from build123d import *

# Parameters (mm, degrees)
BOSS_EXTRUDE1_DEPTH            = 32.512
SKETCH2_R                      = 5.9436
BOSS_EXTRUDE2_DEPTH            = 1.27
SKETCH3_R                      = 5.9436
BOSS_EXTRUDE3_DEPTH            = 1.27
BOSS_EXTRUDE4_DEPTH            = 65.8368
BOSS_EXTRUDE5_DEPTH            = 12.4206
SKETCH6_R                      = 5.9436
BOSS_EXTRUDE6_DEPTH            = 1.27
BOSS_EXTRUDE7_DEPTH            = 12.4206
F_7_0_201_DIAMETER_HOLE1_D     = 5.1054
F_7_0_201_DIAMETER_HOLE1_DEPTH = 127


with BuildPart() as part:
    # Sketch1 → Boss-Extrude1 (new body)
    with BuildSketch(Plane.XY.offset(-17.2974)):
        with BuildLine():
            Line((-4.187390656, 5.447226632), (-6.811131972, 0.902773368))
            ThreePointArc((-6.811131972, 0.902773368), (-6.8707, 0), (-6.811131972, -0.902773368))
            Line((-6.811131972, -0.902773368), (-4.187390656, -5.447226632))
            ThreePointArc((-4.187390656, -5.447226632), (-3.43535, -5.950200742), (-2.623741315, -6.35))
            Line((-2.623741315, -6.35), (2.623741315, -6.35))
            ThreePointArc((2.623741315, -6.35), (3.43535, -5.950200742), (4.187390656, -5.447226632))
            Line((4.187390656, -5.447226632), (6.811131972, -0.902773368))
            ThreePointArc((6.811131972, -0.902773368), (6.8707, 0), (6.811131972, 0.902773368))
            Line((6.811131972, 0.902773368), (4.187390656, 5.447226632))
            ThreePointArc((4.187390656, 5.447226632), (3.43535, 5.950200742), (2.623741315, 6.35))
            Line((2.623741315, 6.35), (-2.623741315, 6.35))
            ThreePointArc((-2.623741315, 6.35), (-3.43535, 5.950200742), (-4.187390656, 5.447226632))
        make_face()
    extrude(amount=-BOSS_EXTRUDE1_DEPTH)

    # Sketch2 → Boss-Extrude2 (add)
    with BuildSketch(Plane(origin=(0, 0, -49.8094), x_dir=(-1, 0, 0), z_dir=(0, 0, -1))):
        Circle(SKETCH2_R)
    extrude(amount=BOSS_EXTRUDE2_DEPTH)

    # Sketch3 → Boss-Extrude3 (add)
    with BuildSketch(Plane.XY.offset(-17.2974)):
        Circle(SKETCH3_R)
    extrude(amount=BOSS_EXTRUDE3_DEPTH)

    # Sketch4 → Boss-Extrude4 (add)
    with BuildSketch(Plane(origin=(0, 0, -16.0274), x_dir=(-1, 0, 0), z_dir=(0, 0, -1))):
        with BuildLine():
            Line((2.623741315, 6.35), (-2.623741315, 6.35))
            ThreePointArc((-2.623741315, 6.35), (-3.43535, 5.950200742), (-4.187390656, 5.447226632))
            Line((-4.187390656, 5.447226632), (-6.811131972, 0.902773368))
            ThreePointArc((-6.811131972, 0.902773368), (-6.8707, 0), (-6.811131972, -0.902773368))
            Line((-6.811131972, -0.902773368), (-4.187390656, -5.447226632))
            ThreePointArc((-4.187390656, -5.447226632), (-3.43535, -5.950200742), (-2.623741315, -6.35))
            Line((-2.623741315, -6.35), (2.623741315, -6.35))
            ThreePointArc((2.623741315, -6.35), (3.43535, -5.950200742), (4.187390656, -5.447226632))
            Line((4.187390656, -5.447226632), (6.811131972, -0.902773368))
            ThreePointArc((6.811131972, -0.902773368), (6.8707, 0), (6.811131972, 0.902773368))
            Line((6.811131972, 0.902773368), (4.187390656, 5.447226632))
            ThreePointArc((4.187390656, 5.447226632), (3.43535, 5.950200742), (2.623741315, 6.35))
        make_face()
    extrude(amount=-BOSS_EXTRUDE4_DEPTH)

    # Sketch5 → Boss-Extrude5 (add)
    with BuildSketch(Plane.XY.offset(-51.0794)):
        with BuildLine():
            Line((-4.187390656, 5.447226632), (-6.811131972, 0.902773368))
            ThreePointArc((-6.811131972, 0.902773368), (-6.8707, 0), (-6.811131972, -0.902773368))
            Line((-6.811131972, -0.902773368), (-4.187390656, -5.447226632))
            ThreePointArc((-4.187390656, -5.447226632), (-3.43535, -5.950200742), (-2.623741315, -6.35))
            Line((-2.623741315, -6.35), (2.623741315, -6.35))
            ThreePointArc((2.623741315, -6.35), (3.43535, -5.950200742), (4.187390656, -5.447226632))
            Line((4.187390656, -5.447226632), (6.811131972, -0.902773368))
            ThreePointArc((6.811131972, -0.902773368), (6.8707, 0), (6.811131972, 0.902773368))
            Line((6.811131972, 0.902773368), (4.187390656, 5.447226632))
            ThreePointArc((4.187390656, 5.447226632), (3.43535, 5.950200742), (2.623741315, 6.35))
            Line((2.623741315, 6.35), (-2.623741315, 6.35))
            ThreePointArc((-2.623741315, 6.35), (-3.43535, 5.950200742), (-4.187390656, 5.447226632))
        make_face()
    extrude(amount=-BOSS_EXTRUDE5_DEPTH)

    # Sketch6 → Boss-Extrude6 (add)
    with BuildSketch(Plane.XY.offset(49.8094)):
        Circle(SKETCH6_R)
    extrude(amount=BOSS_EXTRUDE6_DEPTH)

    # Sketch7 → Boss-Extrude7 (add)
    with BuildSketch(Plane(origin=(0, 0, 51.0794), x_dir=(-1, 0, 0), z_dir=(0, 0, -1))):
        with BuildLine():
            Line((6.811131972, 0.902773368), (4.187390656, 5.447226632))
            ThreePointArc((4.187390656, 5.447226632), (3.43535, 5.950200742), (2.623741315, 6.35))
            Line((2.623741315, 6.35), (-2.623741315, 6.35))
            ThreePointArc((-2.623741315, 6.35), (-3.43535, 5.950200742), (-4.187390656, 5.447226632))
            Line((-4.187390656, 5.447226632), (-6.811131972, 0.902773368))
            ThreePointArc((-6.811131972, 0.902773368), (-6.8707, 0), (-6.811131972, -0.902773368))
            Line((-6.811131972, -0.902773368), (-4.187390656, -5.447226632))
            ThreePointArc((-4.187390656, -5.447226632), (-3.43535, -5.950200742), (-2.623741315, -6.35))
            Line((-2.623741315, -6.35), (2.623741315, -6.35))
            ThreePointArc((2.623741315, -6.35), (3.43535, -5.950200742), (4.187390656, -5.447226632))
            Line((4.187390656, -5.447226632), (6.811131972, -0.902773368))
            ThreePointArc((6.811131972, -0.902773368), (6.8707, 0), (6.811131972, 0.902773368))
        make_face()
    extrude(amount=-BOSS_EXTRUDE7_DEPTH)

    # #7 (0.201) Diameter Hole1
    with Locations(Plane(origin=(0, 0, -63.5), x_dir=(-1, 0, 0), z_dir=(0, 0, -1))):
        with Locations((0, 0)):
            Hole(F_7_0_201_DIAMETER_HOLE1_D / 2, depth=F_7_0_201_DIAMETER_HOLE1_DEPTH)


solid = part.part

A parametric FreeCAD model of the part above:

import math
import FreeCAD as App
import Part
import Sketcher

V = App.Vector
Q = App.Units.Quantity

doc = App.newDocument("Part")
params = doc.addObject("Spreadsheet::Sheet", "Params")
for row, (alias, value) in enumerate([
    ("pad1_length", "1.28 in"),
    ("sketch2_diameter", "0.468 in"),
    ("pad2_length", "0.05 in"),
    ("sketch3_diameter", "0.468 in"),
    ("pad3_length", "0.05 in"),
    ("pad4_length", "2.592 in"),
    ("pad5_length", "0.489 in"),
    ("sketch6_diameter", "0.468 in"),
    ("pad6_length", "0.05 in"),
    ("pad7_length", "0.489 in"),
    ("sketch8_diameter", "0.201 in"),
    ("hole_diameter", "0.201 in"),
    ("hole_depth", "5 in"),
], start=1):
    params.set(f"A{row}", alias)
    params.set(f"B{row}", "=" + value)
    params.setAlias(f"B{row}", alias)

body = doc.addObject("PartDesign::Body", "Body")

# Sketch on XY plane
sketch1 = doc.addObject("Sketcher::SketchObject", "Sketch")
body.addObject(sketch1)
sketch1.AttachmentSupport = (doc.XY_Plane, [""])
sketch1.MapMode = "FlatFace"
sketch1.AttachmentOffset = App.Placement(V(0, 0, -0.681 * 25.4), App.Rotation())
sketch1.addGeometry(Part.LineSegment(V(-4.187391, 5.447227, 0), V(-6.811132, 0.902773, 0)), False)
sketch1.addGeometry(Part.ArcOfCircle(Part.Circle(V(0, 0, 0), V(0, 0, 1), 6.8707), math.radians(172.449808), math.radians(187.550192)), False)
sketch1.addGeometry(Part.LineSegment(V(-6.811132, -0.902773, 0), V(-4.187391, -5.447227, 0)), False)
sketch1.addGeometry(Part.ArcOfCircle(Part.Circle(V(0, 0, 0), V(0, 0, 1), 6.8707), math.radians(-127.550193), math.radians(-112.449807)), False)
sketch1.addGeometry(Part.LineSegment(V(-2.623741, -6.35, 0), V(2.623741, -6.35, 0)), False)
sketch1.addGeometry(Part.ArcOfCircle(Part.Circle(V(0, 0, 0), V(0, 0, 1), 6.8707), math.radians(-67.550193), math.radians(-52.449807)), False)
sketch1.addGeometry(Part.LineSegment(V(4.187391, -5.447227, 0), V(6.811132, -0.902773, 0)), False)
sketch1.addGeometry(Part.ArcOfCircle(Part.Circle(V(0, 0, 0), V(0, 0, 1), 6.8707), math.radians(-7.550192), math.radians(7.550192)), False)
sketch1.addGeometry(Part.LineSegment(V(6.811132, 0.902773, 0), V(4.187391, 5.447227, 0)), False)
sketch1.addGeometry(Part.ArcOfCircle(Part.Circle(V(0, 0, 0), V(0, 0, 1), 6.8707), math.radians(52.449807), math.radians(67.550193)), False)
sketch1.addGeometry(Part.LineSegment(V(2.623741, 6.35, 0), V(-2.623741, 6.35, 0)), False)
sketch1.addGeometry(Part.ArcOfCircle(Part.Circle(V(0, 0, 0), V(0, 0, 1), 6.8707), math.radians(112.449807), math.radians(127.550193)), False)
sketch1.addConstraint(Sketcher.Constraint("Coincident", 0, 2, 1, 1))
sketch1.addConstraint(Sketcher.Constraint("Coincident", 1, 2, 2, 1))
sketch1.addConstraint(Sketcher.Constraint("Coincident", 2, 2, 3, 1))
sketch1.addConstraint(Sketcher.Constraint("Coincident", 3, 2, 4, 1))
sketch1.addConstraint(Sketcher.Constraint("Coincident", 4, 2, 5, 1))
sketch1.addConstraint(Sketcher.Constraint("Coincident", 5, 2, 6, 1))
sketch1.addConstraint(Sketcher.Constraint("Coincident", 6, 2, 7, 1))
sketch1.addConstraint(Sketcher.Constraint("Coincident", 7, 2, 8, 1))
sketch1.addConstraint(Sketcher.Constraint("Coincident", 8, 2, 9, 1))
sketch1.addConstraint(Sketcher.Constraint("Coincident", 9, 2, 10, 1))
sketch1.addConstraint(Sketcher.Constraint("Coincident", 10, 2, 11, 1))
sketch1.addConstraint(Sketcher.Constraint("Coincident", 11, 2, 0, 1))
sketch1.addConstraint(Sketcher.Constraint("Horizontal", 4))
sketch1.addConstraint(Sketcher.Constraint("Horizontal", 10))
sketch1.addConstraint(Sketcher.Constraint("Coincident", 1, 3, -1, 1))
sketch1.addConstraint(Sketcher.Constraint("Coincident", 3, 3, -1, 1))
sketch1.addConstraint(Sketcher.Constraint("Coincident", 5, 3, -1, 1))
sketch1.addConstraint(Sketcher.Constraint("Coincident", 7, 3, -1, 1))
sketch1.addConstraint(Sketcher.Constraint("Coincident", 9, 3, -1, 1))
sketch1.addConstraint(Sketcher.Constraint("Coincident", 11, 3, -1, 1))
sketch1.addConstraint(Sketcher.Constraint("Equal", 1, 3))
sketch1.addConstraint(Sketcher.Constraint("Equal", 3, 5))
sketch1.addConstraint(Sketcher.Constraint("Equal", 5, 7))
sketch1.addConstraint(Sketcher.Constraint("Equal", 7, 9))
sketch1.addConstraint(Sketcher.Constraint("Equal", 9, 11))
sketch1.addConstraint(Sketcher.Constraint("Parallel", 0, 6))
sketch1.addConstraint(Sketcher.Constraint("Parallel", 2, 8))
sketch1.addConstraint(Sketcher.Constraint("Horizontal", 2, 2, 5, 2))
sketch1.addConstraint(Sketcher.Constraint("Horizontal", 1, 2, 6, 2))
sketch1.addConstraint(Sketcher.Constraint("Horizontal", 0, 2, 7, 2))
sketch1.addConstraint(Sketcher.Constraint("Vertical", 0, 2, 1, 2))
sketch1.addConstraint(Sketcher.Constraint("Vertical", 4, 2, 9, 2))
sketch1.addConstraint(Sketcher.Constraint("Angle", 0, Q("-120 deg")))
sketch1.addConstraint(Sketcher.Constraint("Radius", 1, Q("0.2705 in")))
sketch1.addConstraint(Sketcher.Constraint("DistanceY", 3, 2, -1, 1, Q("0.25 in")))
sketch1.addConstraint(Sketcher.Constraint("DistanceY", 2, 2, 0, 2, Q("0.25 in")))
pad1 = doc.addObject("PartDesign::Pad", "Pad")
body.addObject(pad1)
pad1.Profile = sketch1
pad1.setExpression("Length", "Params.pad1_length")
pad1.Reversed = True

# Sketch on XY plane
sketch2 = doc.addObject("Sketcher::SketchObject", "Sketch001")
body.addObject(sketch2)
sketch2.AttachmentSupport = (doc.XY_Plane, [""])
sketch2.MapMode = "FlatFace"
sketch2.AttachmentOffset = App.Placement(V(0, 0, -1.961 * 25.4), App.Rotation())
sketch2.addGeometry(Part.Circle(V(0, 0, 0), V(0, 0, 1), 5.9436), False)
sketch2.addConstraint(Sketcher.Constraint("Coincident", 0, 3, -1, 1))
sketch2.addConstraint(Sketcher.Constraint("Diameter", 0, Q("0.468 in")))
sketch2.setExpression("Constraints[1]", "Params.sketch2_diameter")
pad2 = doc.addObject("PartDesign::Pad", "Pad001")
body.addObject(pad2)
pad2.Profile = sketch2
pad2.setExpression("Length", "Params.pad2_length")
pad2.Reversed = True

# Sketch on XY plane
sketch3 = doc.addObject("Sketcher::SketchObject", "Sketch002")
body.addObject(sketch3)
sketch3.AttachmentSupport = (doc.XY_Plane, [""])
sketch3.MapMode = "FlatFace"
sketch3.AttachmentOffset = App.Placement(V(0, 0, -0.681 * 25.4), App.Rotation())
sketch3.addGeometry(Part.Circle(V(0, 0, 0), V(0, 0, 1), 5.9436), False)
sketch3.addConstraint(Sketcher.Constraint("Coincident", 0, 3, -1, 1))
sketch3.addConstraint(Sketcher.Constraint("Diameter", 0, Q("0.468 in")))
sketch3.setExpression("Constraints[1]", "Params.sketch3_diameter")
pad3 = doc.addObject("PartDesign::Pad", "Pad002")
body.addObject(pad3)
pad3.Profile = sketch3
pad3.setExpression("Length", "Params.pad3_length")

# Sketch on XY plane
sketch4 = doc.addObject("Sketcher::SketchObject", "Sketch003")
body.addObject(sketch4)
sketch4.AttachmentSupport = (doc.XY_Plane, [""])
sketch4.MapMode = "FlatFace"
sketch4.AttachmentOffset = App.Placement(V(0, 0, -0.631 * 25.4), App.Rotation())
sketch4.addGeometry(Part.LineSegment(V(-2.623741, 6.35, 0), V(2.623741, 6.35, 0)), False)
sketch4.addGeometry(Part.ArcOfCircle(Part.Circle(V(0, 0, 0), V(0, 0, 1), 6.8707), math.radians(52.449807), math.radians(67.550193)), False)
sketch4.addGeometry(Part.LineSegment(V(4.187391, 5.447227, 0), V(6.811132, 0.902773, 0)), False)
sketch4.addGeometry(Part.ArcOfCircle(Part.Circle(V(0, 0, 0), V(0, 0, 1), 6.8707), math.radians(-7.550192), math.radians(7.550192)), False)
sketch4.addGeometry(Part.LineSegment(V(6.811132, -0.902773, 0), V(4.187391, -5.447227, 0)), False)
sketch4.addGeometry(Part.ArcOfCircle(Part.Circle(V(0, 0, 0), V(0, 0, 1), 6.8707), math.radians(-67.550193), math.radians(-52.449807)), False)
sketch4.addGeometry(Part.LineSegment(V(2.623741, -6.35, 0), V(-2.623741, -6.35, 0)), False)
sketch4.addGeometry(Part.ArcOfCircle(Part.Circle(V(0, 0, 0), V(0, 0, 1), 6.8707), math.radians(-127.550193), math.radians(-112.449807)), False)
sketch4.addGeometry(Part.LineSegment(V(-4.187391, -5.447227, 0), V(-6.811132, -0.902773, 0)), False)
sketch4.addGeometry(Part.ArcOfCircle(Part.Circle(V(0, 0, 0), V(0, 0, 1), 6.8707), math.radians(172.449808), math.radians(187.550192)), False)
sketch4.addGeometry(Part.LineSegment(V(-6.811132, 0.902773, 0), V(-4.187391, 5.447227, 0)), False)
sketch4.addGeometry(Part.ArcOfCircle(Part.Circle(V(0, 0, 0), V(0, 0, 1), 6.8707), math.radians(112.449807), math.radians(127.550193)), False)
sketch4.addConstraint(Sketcher.Constraint("Coincident", 0, 2, 1, 2))
sketch4.addConstraint(Sketcher.Constraint("Coincident", 1, 1, 2, 1))
sketch4.addConstraint(Sketcher.Constraint("Coincident", 2, 2, 3, 2))
sketch4.addConstraint(Sketcher.Constraint("Coincident", 3, 1, 4, 1))
sketch4.addConstraint(Sketcher.Constraint("Coincident", 4, 2, 5, 2))
sketch4.addConstraint(Sketcher.Constraint("Coincident", 5, 1, 6, 1))
sketch4.addConstraint(Sketcher.Constraint("Coincident", 6, 2, 7, 2))
sketch4.addConstraint(Sketcher.Constraint("Coincident", 7, 1, 8, 1))
sketch4.addConstraint(Sketcher.Constraint("Coincident", 8, 2, 9, 2))
sketch4.addConstraint(Sketcher.Constraint("Coincident", 9, 1, 10, 1))
sketch4.addConstraint(Sketcher.Constraint("Coincident", 10, 2, 11, 2))
sketch4.addConstraint(Sketcher.Constraint("Coincident", 11, 1, 0, 1))
sketch4.addConstraint(Sketcher.Constraint("Horizontal", 0))
sketch4.addConstraint(Sketcher.Constraint("Horizontal", 6))
sketch4.addConstraint(Sketcher.Constraint("Coincident", 1, 3, -1, 1))
sketch4.addConstraint(Sketcher.Constraint("Coincident", 3, 3, -1, 1))
sketch4.addConstraint(Sketcher.Constraint("Coincident", 5, 3, -1, 1))
sketch4.addConstraint(Sketcher.Constraint("Coincident", 7, 3, -1, 1))
sketch4.addConstraint(Sketcher.Constraint("Coincident", 9, 3, -1, 1))
sketch4.addConstraint(Sketcher.Constraint("Coincident", 11, 3, -1, 1))
sketch4.addConstraint(Sketcher.Constraint("Equal", 1, 3))
sketch4.addConstraint(Sketcher.Constraint("Equal", 3, 5))
sketch4.addConstraint(Sketcher.Constraint("Equal", 5, 7))
sketch4.addConstraint(Sketcher.Constraint("Equal", 7, 9))
sketch4.addConstraint(Sketcher.Constraint("Equal", 9, 11))
sketch4.addConstraint(Sketcher.Constraint("Parallel", 2, 8))
sketch4.addConstraint(Sketcher.Constraint("Parallel", 4, 10))
sketch4.addConstraint(Sketcher.Constraint("Horizontal", 4, 2, 7, 1))
sketch4.addConstraint(Sketcher.Constraint("Horizontal", 3, 1, 8, 2))
sketch4.addConstraint(Sketcher.Constraint("Horizontal", 2, 2, 9, 1))
sketch4.addConstraint(Sketcher.Constraint("Vertical", 2, 2, 3, 1))
sketch4.addConstraint(Sketcher.Constraint("Vertical", 0, 2, 5, 1))
sketch4.addConstraint(Sketcher.Constraint("Angle", 2, Q("-60 deg")))
sketch4.addConstraint(Sketcher.Constraint("Radius", 1, Q("0.2705 in")))
sketch4.addConstraint(Sketcher.Constraint("DistanceY", -1, 1, 0, 2, Q("0.25 in")))
sketch4.addConstraint(Sketcher.Constraint("DistanceY", 3, 1, 1, 1, Q("0.25 in")))
pad4 = doc.addObject("PartDesign::Pad", "Pad003")
body.addObject(pad4)
pad4.Profile = sketch4
pad4.setExpression("Length", "Params.pad4_length")

# Sketch on XY plane
sketch5 = doc.addObject("Sketcher::SketchObject", "Sketch004")
body.addObject(sketch5)
sketch5.AttachmentSupport = (doc.XY_Plane, [""])
sketch5.MapMode = "FlatFace"
sketch5.AttachmentOffset = App.Placement(V(0, 0, -2.011 * 25.4), App.Rotation())
sketch5.addGeometry(Part.LineSegment(V(-4.187391, 5.447227, 0), V(-6.811132, 0.902773, 0)), False)
sketch5.addGeometry(Part.ArcOfCircle(Part.Circle(V(0, 0, 0), V(0, 0, 1), 6.8707), math.radians(172.449808), math.radians(187.550192)), False)
sketch5.addGeometry(Part.LineSegment(V(-6.811132, -0.902773, 0), V(-4.187391, -5.447227, 0)), False)
sketch5.addGeometry(Part.ArcOfCircle(Part.Circle(V(0, 0, 0), V(0, 0, 1), 6.8707), math.radians(-127.550193), math.radians(-112.449807)), False)
sketch5.addGeometry(Part.LineSegment(V(-2.623741, -6.35, 0), V(2.623741, -6.35, 0)), False)
sketch5.addGeometry(Part.ArcOfCircle(Part.Circle(V(0, 0, 0), V(0, 0, 1), 6.8707), math.radians(-67.550193), math.radians(-52.449807)), False)
sketch5.addGeometry(Part.LineSegment(V(4.187391, -5.447227, 0), V(6.811132, -0.902773, 0)), False)
sketch5.addGeometry(Part.ArcOfCircle(Part.Circle(V(0, 0, 0), V(0, 0, 1), 6.8707), math.radians(-7.550192), math.radians(7.550192)), False)
sketch5.addGeometry(Part.LineSegment(V(6.811132, 0.902773, 0), V(4.187391, 5.447227, 0)), False)
sketch5.addGeometry(Part.ArcOfCircle(Part.Circle(V(0, 0, 0), V(0, 0, 1), 6.8707), math.radians(52.449807), math.radians(67.550193)), False)
sketch5.addGeometry(Part.LineSegment(V(2.623741, 6.35, 0), V(-2.623741, 6.35, 0)), False)
sketch5.addGeometry(Part.ArcOfCircle(Part.Circle(V(0, 0, 0), V(0, 0, 1), 6.8707), math.radians(112.449807), math.radians(127.550193)), False)
sketch5.addConstraint(Sketcher.Constraint("Coincident", 0, 2, 1, 1))
sketch5.addConstraint(Sketcher.Constraint("Coincident", 1, 2, 2, 1))
sketch5.addConstraint(Sketcher.Constraint("Coincident", 2, 2, 3, 1))
sketch5.addConstraint(Sketcher.Constraint("Coincident", 3, 2, 4, 1))
sketch5.addConstraint(Sketcher.Constraint("Coincident", 4, 2, 5, 1))
sketch5.addConstraint(Sketcher.Constraint("Coincident", 5, 2, 6, 1))
sketch5.addConstraint(Sketcher.Constraint("Coincident", 6, 2, 7, 1))
sketch5.addConstraint(Sketcher.Constraint("Coincident", 7, 2, 8, 1))
sketch5.addConstraint(Sketcher.Constraint("Coincident", 8, 2, 9, 1))
sketch5.addConstraint(Sketcher.Constraint("Coincident", 9, 2, 10, 1))
sketch5.addConstraint(Sketcher.Constraint("Coincident", 10, 2, 11, 1))
sketch5.addConstraint(Sketcher.Constraint("Coincident", 11, 2, 0, 1))
sketch5.addConstraint(Sketcher.Constraint("Horizontal", 4))
sketch5.addConstraint(Sketcher.Constraint("Horizontal", 10))
sketch5.addConstraint(Sketcher.Constraint("Coincident", 1, 3, -1, 1))
sketch5.addConstraint(Sketcher.Constraint("Coincident", 3, 3, -1, 1))
sketch5.addConstraint(Sketcher.Constraint("Coincident", 5, 3, -1, 1))
sketch5.addConstraint(Sketcher.Constraint("Coincident", 7, 3, -1, 1))
sketch5.addConstraint(Sketcher.Constraint("Coincident", 9, 3, -1, 1))
sketch5.addConstraint(Sketcher.Constraint("Coincident", 11, 3, -1, 1))
sketch5.addConstraint(Sketcher.Constraint("Equal", 1, 3))
sketch5.addConstraint(Sketcher.Constraint("Equal", 3, 5))
sketch5.addConstraint(Sketcher.Constraint("Equal", 5, 7))
sketch5.addConstraint(Sketcher.Constraint("Equal", 7, 9))
sketch5.addConstraint(Sketcher.Constraint("Equal", 9, 11))
sketch5.addConstraint(Sketcher.Constraint("Parallel", 0, 6))
sketch5.addConstraint(Sketcher.Constraint("Parallel", 2, 8))
sketch5.addConstraint(Sketcher.Constraint("Horizontal", 2, 2, 5, 2))
sketch5.addConstraint(Sketcher.Constraint("Horizontal", 1, 2, 6, 2))
sketch5.addConstraint(Sketcher.Constraint("Horizontal", 0, 2, 7, 2))
sketch5.addConstraint(Sketcher.Constraint("Vertical", 0, 2, 1, 2))
sketch5.addConstraint(Sketcher.Constraint("Vertical", 4, 2, 9, 2))
sketch5.addConstraint(Sketcher.Constraint("Angle", 0, Q("-120 deg")))
sketch5.addConstraint(Sketcher.Constraint("Radius", 1, Q("0.2705 in")))
sketch5.addConstraint(Sketcher.Constraint("DistanceY", 3, 2, -1, 1, Q("0.25 in")))
sketch5.addConstraint(Sketcher.Constraint("DistanceY", 2, 2, 0, 2, Q("0.25 in")))
pad5 = doc.addObject("PartDesign::Pad", "Pad004")
body.addObject(pad5)
pad5.Profile = sketch5
pad5.setExpression("Length", "Params.pad5_length")
pad5.Reversed = True

# Sketch on XY plane
sketch6 = doc.addObject("Sketcher::SketchObject", "Sketch005")
body.addObject(sketch6)
sketch6.AttachmentSupport = (doc.XY_Plane, [""])
sketch6.MapMode = "FlatFace"
sketch6.AttachmentOffset = App.Placement(V(0, 0, 1.961 * 25.4), App.Rotation())
sketch6.addGeometry(Part.Circle(V(0, 0, 0), V(0, 0, 1), 5.9436), False)
sketch6.addConstraint(Sketcher.Constraint("Coincident", 0, 3, -1, 1))
sketch6.addConstraint(Sketcher.Constraint("Diameter", 0, Q("0.468 in")))
sketch6.setExpression("Constraints[1]", "Params.sketch6_diameter")
pad6 = doc.addObject("PartDesign::Pad", "Pad005")
body.addObject(pad6)
pad6.Profile = sketch6
pad6.setExpression("Length", "Params.pad6_length")

# Sketch on XY plane
sketch7 = doc.addObject("Sketcher::SketchObject", "Sketch006")
body.addObject(sketch7)
sketch7.AttachmentSupport = (doc.XY_Plane, [""])
sketch7.MapMode = "FlatFace"
sketch7.AttachmentOffset = App.Placement(V(0, 0, 2.011 * 25.4), App.Rotation())
sketch7.addGeometry(Part.LineSegment(V(-6.811132, 0.902773, 0), V(-4.187391, 5.447227, 0)), False)
sketch7.addGeometry(Part.ArcOfCircle(Part.Circle(V(0, 0, 0), V(0, 0, 1), 6.8707), math.radians(112.449807), math.radians(127.550193)), False)
sketch7.addGeometry(Part.LineSegment(V(-2.623741, 6.35, 0), V(2.623741, 6.35, 0)), False)
sketch7.addGeometry(Part.ArcOfCircle(Part.Circle(V(0, 0, 0), V(0, 0, 1), 6.8707), math.radians(52.449807), math.radians(67.550193)), False)
sketch7.addGeometry(Part.LineSegment(V(4.187391, 5.447227, 0), V(6.811132, 0.902773, 0)), False)
sketch7.addGeometry(Part.ArcOfCircle(Part.Circle(V(0, 0, 0), V(0, 0, 1), 6.8707), math.radians(-7.550192), math.radians(7.550192)), False)
sketch7.addGeometry(Part.LineSegment(V(6.811132, -0.902773, 0), V(4.187391, -5.447227, 0)), False)
sketch7.addGeometry(Part.ArcOfCircle(Part.Circle(V(0, 0, 0), V(0, 0, 1), 6.8707), math.radians(-67.550193), math.radians(-52.449807)), False)
sketch7.addGeometry(Part.LineSegment(V(2.623741, -6.35, 0), V(-2.623741, -6.35, 0)), False)
sketch7.addGeometry(Part.ArcOfCircle(Part.Circle(V(0, 0, 0), V(0, 0, 1), 6.8707), math.radians(-127.550193), math.radians(-112.449807)), False)
sketch7.addGeometry(Part.LineSegment(V(-4.187391, -5.447227, 0), V(-6.811132, -0.902773, 0)), False)
sketch7.addGeometry(Part.ArcOfCircle(Part.Circle(V(0, 0, 0), V(0, 0, 1), 6.8707), math.radians(172.449808), math.radians(187.550192)), False)
sketch7.addConstraint(Sketcher.Constraint("Coincident", 0, 2, 1, 2))
sketch7.addConstraint(Sketcher.Constraint("Coincident", 1, 1, 2, 1))
sketch7.addConstraint(Sketcher.Constraint("Coincident", 2, 2, 3, 2))
sketch7.addConstraint(Sketcher.Constraint("Coincident", 3, 1, 4, 1))
sketch7.addConstraint(Sketcher.Constraint("Coincident", 4, 2, 5, 2))
sketch7.addConstraint(Sketcher.Constraint("Coincident", 5, 1, 6, 1))
sketch7.addConstraint(Sketcher.Constraint("Coincident", 6, 2, 7, 2))
sketch7.addConstraint(Sketcher.Constraint("Coincident", 7, 1, 8, 1))
sketch7.addConstraint(Sketcher.Constraint("Coincident", 8, 2, 9, 2))
sketch7.addConstraint(Sketcher.Constraint("Coincident", 9, 1, 10, 1))
sketch7.addConstraint(Sketcher.Constraint("Coincident", 10, 2, 11, 2))
sketch7.addConstraint(Sketcher.Constraint("Coincident", 11, 1, 0, 1))
sketch7.addConstraint(Sketcher.Constraint("Horizontal", 2))
sketch7.addConstraint(Sketcher.Constraint("Horizontal", 8))
sketch7.addConstraint(Sketcher.Constraint("Coincident", 1, 3, -1, 1))
sketch7.addConstraint(Sketcher.Constraint("Coincident", 3, 3, -1, 1))
sketch7.addConstraint(Sketcher.Constraint("Coincident", 5, 3, -1, 1))
sketch7.addConstraint(Sketcher.Constraint("Coincident", 7, 3, -1, 1))
sketch7.addConstraint(Sketcher.Constraint("Coincident", 9, 3, -1, 1))
sketch7.addConstraint(Sketcher.Constraint("Coincident", 11, 3, -1, 1))
sketch7.addConstraint(Sketcher.Constraint("Equal", 1, 3))
sketch7.addConstraint(Sketcher.Constraint("Equal", 3, 5))
sketch7.addConstraint(Sketcher.Constraint("Equal", 5, 7))
sketch7.addConstraint(Sketcher.Constraint("Equal", 7, 9))
sketch7.addConstraint(Sketcher.Constraint("Equal", 9, 11))
sketch7.addConstraint(Sketcher.Constraint("Parallel", 0, 6))
sketch7.addConstraint(Sketcher.Constraint("Parallel", 4, 10))
sketch7.addConstraint(Sketcher.Constraint("Horizontal", 0, 2, 3, 1))
sketch7.addConstraint(Sketcher.Constraint("Horizontal", 6, 2, 9, 1))
sketch7.addConstraint(Sketcher.Constraint("Horizontal", 5, 1, 10, 2))
sketch7.addConstraint(Sketcher.Constraint("Vertical", 4, 2, 5, 1))
sketch7.addConstraint(Sketcher.Constraint("Vertical", 2, 2, 7, 1))
sketch7.addConstraint(Sketcher.Constraint("Angle", 0, Q("60 deg")))
sketch7.addConstraint(Sketcher.Constraint("Radius", 1, Q("0.2705 in")))
sketch7.addConstraint(Sketcher.Constraint("DistanceY", -1, 1, 1, 1, Q("0.25 in")))
sketch7.addConstraint(Sketcher.Constraint("DistanceY", 5, 1, 3, 1, Q("0.25 in")))
pad7 = doc.addObject("PartDesign::Pad", "Pad006")
body.addObject(pad7)
pad7.Profile = sketch7
pad7.setExpression("Length", "Params.pad7_length")

# Sketch on XY plane
sketch8 = doc.addObject("Sketcher::SketchObject", "Sketch007")
body.addObject(sketch8)
sketch8.AttachmentSupport = (doc.XY_Plane, [""])
sketch8.MapMode = "FlatFace"
sketch8.AttachmentOffset = App.Placement(V(0, 0, -2.5 * 25.4), App.Rotation())
sketch8.addGeometry(Part.Circle(V(0, 0, 0), V(0, 0, 1), 2.5527), False)
sketch8.addConstraint(Sketcher.Constraint("Coincident", 0, 3, -1, 1))
sketch8.addConstraint(Sketcher.Constraint("Diameter", 0, Q("0.201 in")))
sketch8.setExpression("Constraints[1]", "Params.sketch8_diameter")
doc.recompute()
hole = doc.addObject("PartDesign::Hole", "Hole")
body.addObject(hole)
hole.Profile = sketch8
hole.ThreadType = "None"
hole.setExpression("Diameter", "Params.hole_diameter")
hole.DepthType = "Dimension"
hole.setExpression("Depth", "Params.hole_depth")
hole.DrillPoint = "Flat"
hole.Reversed = True

doc.recompute()
